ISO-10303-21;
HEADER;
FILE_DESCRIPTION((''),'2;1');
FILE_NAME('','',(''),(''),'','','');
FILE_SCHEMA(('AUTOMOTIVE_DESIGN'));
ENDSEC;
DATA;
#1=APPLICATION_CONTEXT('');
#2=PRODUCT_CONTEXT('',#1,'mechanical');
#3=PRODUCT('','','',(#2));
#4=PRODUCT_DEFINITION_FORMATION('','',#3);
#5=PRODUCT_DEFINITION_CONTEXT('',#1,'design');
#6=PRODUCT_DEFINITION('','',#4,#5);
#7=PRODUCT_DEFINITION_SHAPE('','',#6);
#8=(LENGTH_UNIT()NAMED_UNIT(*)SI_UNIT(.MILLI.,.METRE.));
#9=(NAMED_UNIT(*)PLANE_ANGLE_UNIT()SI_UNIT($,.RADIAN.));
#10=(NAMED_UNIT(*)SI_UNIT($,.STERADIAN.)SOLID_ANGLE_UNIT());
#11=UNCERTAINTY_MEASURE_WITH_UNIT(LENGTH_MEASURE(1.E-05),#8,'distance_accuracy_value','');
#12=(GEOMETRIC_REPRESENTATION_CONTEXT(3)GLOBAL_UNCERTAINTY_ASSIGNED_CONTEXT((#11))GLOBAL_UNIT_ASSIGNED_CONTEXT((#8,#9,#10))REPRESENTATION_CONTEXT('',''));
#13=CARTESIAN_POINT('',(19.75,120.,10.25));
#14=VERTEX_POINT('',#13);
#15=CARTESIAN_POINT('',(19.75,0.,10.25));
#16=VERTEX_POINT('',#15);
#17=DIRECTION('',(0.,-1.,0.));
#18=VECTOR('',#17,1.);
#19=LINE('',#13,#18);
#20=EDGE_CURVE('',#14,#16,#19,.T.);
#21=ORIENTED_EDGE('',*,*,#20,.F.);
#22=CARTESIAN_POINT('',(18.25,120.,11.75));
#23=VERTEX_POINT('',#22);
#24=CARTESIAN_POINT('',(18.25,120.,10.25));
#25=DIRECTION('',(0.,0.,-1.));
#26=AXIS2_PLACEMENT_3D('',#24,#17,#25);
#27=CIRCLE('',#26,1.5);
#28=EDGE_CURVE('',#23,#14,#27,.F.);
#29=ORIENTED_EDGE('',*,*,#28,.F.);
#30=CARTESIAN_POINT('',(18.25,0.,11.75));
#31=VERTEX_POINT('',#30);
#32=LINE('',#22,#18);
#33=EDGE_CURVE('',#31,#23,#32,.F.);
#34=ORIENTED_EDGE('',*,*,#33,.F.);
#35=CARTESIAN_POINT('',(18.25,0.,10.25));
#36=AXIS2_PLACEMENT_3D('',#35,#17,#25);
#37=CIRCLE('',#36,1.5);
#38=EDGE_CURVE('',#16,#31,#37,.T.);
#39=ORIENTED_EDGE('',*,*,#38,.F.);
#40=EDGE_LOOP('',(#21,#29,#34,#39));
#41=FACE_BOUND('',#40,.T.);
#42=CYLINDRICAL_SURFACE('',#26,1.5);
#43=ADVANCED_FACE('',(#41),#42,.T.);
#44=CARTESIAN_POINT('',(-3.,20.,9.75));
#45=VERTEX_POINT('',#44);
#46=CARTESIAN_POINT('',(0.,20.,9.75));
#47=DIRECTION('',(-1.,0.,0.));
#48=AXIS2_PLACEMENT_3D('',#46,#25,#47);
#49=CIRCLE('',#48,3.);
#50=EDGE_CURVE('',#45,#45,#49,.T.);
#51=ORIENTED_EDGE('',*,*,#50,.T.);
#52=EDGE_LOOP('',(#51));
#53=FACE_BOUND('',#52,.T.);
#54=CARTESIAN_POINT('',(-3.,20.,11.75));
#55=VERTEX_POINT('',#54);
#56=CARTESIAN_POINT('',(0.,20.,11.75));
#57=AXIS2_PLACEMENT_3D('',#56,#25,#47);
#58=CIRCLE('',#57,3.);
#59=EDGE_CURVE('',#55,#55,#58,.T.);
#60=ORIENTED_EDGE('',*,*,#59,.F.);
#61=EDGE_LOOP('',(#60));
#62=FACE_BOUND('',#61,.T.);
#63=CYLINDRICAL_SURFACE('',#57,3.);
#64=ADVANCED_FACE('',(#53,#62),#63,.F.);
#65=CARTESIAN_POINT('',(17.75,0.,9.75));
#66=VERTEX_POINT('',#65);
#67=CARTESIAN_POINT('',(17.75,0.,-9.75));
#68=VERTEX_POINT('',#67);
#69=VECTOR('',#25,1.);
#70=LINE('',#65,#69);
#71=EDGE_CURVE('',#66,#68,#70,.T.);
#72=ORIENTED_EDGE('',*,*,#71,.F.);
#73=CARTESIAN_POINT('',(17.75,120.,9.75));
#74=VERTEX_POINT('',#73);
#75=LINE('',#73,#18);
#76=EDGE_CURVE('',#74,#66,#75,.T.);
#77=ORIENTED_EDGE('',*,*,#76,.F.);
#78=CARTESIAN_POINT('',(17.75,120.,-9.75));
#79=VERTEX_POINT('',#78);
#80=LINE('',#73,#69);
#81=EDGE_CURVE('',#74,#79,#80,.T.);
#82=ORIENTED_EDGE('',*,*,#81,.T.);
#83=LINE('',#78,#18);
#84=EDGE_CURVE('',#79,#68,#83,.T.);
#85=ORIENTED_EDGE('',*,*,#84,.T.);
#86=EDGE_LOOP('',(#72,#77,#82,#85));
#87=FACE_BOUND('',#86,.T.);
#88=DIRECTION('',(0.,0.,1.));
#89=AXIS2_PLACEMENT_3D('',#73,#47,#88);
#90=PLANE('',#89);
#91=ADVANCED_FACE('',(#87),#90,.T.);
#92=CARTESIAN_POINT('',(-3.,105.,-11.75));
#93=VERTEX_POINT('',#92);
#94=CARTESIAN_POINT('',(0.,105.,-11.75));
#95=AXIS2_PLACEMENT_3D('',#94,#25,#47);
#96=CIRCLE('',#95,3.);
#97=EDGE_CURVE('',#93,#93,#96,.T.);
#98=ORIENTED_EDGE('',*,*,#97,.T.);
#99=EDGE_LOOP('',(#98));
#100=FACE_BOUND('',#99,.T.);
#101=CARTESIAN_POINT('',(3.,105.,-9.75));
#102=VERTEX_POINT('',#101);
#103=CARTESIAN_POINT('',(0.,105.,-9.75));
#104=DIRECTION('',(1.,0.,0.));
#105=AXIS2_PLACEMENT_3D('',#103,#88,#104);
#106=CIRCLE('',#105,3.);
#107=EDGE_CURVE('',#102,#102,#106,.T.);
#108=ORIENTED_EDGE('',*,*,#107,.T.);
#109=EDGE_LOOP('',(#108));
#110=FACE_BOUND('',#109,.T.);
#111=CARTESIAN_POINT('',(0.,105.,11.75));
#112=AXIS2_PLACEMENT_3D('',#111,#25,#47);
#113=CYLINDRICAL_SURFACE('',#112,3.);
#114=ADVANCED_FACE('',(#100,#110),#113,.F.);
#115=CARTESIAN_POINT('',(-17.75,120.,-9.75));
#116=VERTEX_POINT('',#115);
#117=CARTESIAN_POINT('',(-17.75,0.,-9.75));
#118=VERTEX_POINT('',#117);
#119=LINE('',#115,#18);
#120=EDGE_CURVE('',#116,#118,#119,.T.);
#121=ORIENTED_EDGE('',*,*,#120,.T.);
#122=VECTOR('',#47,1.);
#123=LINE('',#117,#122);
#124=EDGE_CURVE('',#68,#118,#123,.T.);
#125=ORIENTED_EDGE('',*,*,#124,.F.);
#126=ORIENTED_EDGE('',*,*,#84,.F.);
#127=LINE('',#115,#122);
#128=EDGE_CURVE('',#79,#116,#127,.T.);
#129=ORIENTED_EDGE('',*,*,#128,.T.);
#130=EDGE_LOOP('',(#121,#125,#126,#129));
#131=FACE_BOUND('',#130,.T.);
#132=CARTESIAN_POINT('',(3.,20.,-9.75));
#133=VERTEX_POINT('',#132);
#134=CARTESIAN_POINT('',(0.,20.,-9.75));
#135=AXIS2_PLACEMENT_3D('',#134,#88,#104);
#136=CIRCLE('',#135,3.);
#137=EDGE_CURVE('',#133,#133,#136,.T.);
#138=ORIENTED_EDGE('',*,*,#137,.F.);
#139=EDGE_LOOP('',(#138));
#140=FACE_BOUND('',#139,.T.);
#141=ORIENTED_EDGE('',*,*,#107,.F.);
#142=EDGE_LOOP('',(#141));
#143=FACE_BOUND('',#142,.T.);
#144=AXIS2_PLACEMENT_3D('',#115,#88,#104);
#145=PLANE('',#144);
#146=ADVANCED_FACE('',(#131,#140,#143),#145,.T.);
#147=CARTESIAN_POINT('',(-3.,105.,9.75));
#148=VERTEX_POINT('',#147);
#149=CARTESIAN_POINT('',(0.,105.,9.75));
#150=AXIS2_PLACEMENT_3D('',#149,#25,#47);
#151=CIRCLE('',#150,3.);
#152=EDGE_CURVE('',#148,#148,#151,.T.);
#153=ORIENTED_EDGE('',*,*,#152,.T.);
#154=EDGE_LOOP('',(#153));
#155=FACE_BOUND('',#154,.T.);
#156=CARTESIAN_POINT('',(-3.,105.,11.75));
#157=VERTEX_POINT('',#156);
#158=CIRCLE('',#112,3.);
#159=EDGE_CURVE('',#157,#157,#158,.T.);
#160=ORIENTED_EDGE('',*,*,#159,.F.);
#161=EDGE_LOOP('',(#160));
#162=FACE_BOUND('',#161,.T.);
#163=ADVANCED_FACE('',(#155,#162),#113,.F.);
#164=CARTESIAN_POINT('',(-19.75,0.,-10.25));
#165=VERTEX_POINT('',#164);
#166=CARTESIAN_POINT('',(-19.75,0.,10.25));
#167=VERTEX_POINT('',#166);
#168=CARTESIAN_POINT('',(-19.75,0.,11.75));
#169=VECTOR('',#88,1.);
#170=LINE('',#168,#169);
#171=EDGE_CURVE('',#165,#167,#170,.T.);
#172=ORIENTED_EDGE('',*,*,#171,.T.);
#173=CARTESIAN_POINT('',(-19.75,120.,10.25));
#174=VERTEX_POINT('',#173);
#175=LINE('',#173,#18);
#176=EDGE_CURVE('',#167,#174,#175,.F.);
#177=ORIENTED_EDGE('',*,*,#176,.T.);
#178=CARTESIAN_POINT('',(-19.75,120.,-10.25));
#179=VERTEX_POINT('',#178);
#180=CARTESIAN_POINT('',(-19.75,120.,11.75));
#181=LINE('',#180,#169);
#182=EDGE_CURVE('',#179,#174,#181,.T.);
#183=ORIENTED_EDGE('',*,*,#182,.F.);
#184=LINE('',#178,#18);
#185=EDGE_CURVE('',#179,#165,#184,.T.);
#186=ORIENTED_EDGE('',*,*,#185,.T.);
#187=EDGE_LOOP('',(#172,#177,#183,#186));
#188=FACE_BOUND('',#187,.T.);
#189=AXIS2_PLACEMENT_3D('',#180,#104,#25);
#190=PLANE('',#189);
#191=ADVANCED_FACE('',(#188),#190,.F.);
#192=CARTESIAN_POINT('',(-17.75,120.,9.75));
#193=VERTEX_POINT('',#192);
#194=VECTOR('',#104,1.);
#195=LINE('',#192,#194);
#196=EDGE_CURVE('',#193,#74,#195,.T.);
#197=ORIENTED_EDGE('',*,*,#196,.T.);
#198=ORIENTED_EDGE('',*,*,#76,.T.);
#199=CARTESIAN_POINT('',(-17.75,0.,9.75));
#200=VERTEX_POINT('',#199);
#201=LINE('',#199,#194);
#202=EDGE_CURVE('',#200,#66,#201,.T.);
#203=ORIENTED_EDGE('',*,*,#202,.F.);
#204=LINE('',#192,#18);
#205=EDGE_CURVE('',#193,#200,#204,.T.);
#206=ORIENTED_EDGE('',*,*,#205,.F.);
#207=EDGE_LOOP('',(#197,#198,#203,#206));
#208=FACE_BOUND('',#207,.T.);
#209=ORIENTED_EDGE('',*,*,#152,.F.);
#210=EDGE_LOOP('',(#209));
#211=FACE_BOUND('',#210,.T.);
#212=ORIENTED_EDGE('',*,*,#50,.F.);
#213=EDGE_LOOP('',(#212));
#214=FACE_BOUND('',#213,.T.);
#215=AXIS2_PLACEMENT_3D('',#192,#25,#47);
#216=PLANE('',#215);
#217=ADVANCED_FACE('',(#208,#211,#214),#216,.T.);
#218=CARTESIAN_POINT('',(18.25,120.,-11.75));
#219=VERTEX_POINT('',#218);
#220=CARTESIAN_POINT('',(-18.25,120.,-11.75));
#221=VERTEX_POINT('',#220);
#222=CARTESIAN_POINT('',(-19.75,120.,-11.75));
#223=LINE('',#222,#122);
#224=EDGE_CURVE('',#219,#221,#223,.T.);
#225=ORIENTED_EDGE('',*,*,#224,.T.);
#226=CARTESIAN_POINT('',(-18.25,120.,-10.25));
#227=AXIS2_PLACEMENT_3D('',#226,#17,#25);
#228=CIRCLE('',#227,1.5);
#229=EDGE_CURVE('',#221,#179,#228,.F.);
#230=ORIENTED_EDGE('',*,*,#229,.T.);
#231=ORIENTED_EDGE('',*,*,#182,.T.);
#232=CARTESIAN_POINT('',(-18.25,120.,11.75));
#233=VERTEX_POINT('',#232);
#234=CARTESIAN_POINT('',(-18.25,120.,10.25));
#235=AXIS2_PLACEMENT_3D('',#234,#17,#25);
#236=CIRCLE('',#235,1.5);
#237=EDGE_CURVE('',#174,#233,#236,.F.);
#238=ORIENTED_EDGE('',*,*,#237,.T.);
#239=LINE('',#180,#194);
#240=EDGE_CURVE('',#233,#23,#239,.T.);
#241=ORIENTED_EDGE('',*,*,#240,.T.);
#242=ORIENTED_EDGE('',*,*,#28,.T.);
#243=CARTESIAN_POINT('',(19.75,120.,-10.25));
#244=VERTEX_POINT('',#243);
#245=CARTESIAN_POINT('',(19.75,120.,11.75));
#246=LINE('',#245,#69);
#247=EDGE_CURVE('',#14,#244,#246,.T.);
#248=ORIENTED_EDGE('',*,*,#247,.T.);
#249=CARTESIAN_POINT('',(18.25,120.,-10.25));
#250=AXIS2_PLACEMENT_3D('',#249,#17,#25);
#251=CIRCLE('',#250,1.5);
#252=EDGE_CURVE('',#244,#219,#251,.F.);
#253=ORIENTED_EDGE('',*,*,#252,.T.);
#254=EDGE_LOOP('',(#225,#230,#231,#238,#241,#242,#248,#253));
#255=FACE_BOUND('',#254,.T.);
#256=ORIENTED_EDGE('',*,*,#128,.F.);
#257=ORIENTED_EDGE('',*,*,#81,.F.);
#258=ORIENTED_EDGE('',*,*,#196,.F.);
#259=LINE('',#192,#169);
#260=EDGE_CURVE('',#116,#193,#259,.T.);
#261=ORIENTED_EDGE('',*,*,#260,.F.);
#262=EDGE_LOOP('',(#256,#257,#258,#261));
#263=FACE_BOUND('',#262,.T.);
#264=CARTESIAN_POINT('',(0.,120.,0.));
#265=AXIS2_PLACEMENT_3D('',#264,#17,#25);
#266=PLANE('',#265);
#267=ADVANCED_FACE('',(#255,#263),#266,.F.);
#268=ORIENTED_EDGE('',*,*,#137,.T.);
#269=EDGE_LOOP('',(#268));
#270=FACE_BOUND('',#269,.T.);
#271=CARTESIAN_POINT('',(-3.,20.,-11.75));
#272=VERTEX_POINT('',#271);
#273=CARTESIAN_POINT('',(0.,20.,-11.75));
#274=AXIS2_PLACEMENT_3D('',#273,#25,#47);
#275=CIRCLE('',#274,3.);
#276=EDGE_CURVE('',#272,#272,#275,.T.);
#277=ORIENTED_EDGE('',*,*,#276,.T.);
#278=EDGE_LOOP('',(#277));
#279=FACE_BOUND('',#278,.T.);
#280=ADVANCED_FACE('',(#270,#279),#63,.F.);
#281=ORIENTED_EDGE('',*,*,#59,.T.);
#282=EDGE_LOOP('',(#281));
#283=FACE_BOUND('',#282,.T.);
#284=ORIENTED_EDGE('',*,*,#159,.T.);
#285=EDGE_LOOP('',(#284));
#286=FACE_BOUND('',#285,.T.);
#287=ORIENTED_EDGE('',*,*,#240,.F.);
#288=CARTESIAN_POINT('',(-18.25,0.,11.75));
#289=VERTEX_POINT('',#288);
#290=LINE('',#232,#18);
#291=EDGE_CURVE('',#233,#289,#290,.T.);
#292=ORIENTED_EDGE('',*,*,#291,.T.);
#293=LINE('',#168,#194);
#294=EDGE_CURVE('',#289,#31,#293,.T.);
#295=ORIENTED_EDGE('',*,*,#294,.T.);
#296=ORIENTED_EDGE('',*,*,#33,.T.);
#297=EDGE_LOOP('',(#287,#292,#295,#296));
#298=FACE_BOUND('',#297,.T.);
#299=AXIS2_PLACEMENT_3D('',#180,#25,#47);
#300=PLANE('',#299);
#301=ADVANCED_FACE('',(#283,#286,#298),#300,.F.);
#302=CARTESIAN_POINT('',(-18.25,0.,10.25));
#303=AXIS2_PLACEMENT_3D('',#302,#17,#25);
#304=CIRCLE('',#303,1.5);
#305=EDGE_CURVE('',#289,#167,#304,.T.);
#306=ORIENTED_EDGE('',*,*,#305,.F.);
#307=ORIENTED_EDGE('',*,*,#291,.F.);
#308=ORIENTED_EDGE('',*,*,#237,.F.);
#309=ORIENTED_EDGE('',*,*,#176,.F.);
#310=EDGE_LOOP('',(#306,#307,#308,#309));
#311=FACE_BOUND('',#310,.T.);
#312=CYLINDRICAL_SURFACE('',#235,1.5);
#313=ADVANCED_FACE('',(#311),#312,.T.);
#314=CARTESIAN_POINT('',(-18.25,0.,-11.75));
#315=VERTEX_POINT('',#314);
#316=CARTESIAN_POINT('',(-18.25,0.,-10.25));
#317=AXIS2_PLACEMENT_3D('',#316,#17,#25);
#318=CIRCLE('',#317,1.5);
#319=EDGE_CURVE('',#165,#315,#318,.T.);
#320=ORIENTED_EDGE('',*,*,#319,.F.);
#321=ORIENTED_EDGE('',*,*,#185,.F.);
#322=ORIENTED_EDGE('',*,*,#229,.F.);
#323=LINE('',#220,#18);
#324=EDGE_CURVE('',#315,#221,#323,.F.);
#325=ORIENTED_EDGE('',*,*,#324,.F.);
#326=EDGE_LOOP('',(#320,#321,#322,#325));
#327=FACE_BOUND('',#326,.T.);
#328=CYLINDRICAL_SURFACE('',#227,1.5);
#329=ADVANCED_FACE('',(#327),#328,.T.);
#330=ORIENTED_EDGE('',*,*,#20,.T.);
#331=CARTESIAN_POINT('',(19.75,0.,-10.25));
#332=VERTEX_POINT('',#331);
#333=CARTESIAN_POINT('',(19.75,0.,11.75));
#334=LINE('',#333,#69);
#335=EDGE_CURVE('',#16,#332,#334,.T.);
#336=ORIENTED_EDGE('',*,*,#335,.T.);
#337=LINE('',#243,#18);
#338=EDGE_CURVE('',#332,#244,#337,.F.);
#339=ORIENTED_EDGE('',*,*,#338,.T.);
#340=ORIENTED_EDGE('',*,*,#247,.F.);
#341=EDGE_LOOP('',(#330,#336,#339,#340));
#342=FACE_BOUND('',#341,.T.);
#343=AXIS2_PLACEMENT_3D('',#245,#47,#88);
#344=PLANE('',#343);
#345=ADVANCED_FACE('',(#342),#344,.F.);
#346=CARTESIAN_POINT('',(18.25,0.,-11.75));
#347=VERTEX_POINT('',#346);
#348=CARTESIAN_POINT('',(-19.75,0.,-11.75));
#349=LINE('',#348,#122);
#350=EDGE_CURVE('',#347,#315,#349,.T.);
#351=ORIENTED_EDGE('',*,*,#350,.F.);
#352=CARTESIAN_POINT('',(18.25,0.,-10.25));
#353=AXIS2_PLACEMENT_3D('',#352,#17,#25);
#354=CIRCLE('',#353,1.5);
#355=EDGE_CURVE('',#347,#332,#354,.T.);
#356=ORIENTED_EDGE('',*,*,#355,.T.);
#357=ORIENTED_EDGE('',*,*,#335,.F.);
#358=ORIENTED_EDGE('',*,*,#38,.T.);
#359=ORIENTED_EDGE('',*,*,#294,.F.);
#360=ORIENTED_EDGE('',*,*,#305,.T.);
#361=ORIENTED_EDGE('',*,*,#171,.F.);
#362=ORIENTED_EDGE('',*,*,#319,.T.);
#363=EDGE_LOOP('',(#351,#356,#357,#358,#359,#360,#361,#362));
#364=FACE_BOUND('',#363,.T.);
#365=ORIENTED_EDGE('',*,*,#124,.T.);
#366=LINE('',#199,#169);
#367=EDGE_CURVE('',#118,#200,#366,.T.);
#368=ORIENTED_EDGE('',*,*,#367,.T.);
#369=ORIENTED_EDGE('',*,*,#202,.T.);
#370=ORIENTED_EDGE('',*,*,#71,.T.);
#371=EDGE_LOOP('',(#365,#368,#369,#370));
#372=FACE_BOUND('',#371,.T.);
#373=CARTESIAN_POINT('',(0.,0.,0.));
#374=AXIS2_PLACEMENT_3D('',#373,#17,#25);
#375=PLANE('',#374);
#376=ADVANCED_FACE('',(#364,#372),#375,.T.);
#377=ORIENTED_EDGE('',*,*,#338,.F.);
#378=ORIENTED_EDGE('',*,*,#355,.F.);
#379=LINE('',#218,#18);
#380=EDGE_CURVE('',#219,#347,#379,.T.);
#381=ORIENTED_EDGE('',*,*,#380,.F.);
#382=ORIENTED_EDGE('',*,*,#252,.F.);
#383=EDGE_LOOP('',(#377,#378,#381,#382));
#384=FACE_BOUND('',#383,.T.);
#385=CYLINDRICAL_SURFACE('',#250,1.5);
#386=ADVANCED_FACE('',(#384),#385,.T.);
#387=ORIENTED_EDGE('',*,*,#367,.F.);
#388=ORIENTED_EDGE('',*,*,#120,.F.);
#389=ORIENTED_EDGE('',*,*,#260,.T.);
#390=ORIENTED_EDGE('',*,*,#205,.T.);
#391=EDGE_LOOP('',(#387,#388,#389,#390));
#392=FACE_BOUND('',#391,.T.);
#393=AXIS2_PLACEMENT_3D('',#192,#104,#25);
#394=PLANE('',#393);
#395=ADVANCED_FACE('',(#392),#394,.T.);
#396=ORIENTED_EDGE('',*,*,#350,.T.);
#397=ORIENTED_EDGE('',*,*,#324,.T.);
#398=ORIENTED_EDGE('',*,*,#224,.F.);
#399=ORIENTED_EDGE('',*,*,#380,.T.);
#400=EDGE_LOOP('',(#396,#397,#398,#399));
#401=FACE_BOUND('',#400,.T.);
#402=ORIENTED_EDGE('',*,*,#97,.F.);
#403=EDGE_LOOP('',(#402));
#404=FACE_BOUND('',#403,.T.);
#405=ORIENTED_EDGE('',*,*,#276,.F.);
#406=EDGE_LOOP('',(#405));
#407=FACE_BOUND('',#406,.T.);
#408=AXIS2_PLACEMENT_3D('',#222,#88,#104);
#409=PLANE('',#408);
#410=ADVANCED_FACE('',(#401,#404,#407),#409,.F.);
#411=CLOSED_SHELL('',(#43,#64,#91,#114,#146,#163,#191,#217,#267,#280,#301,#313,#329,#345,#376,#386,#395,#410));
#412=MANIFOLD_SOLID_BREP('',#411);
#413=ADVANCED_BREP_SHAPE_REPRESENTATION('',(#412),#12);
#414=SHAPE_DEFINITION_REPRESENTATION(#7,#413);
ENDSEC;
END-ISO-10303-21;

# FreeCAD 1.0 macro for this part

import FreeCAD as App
import Part
import Sketcher
from FreeCAD import Vector
Q = App.Units.Quantity


def edges_at(feature, points):
    """Names of the edges that pass closest to the given points."""
    edges = feature.Shape.Edges
    near = lambda p: min(range(len(edges)), key=lambda i: edges[i].distToShape(Part.Vertex(*p))[0])
    return sorted({f"Edge{near(p) + 1}" for p in points})


def add_polygon(sketch, points):
    """Adds a closed chain of lines whose ends are joined by coincident constraints."""
    first, n = sketch.GeometryCount, len(points)
    for a, b in zip(points, points[1:] + points[:1]):
        sketch.addGeometry(Part.LineSegment(App.Vector(*a, 0), App.Vector(*b, 0)), False)
    for i in range(n):
        sketch.addConstraint(Sketcher.Constraint("Coincident", first + i, 2, first + (i + 1) % n, 1))

doc = App.newDocument("Part")
body = doc.addObject("PartDesign::Body", "Body")

# Sketch on XZ plane
sketch1 = doc.addObject("Sketcher::SketchObject", "Sketch")
body.addObject(sketch1)
sketch1.AttachmentSupport = (doc.XZ_Plane, [""])
sketch1.MapMode = "FlatFace"
add_polygon(sketch1, [(-20, -12), (-20, 12), (20, 12), (20, -12)])  # lines 0-3
add_polygon(sketch1, [(18, 10), (-18, 10), (-18, -10), (18, -10)])  # lines 4-7
sketch1.addConstraint([
    Sketcher.Constraint("Vertical", 0),
    Sketcher.Constraint("Horizontal", 1),
    Sketcher.Constraint("Vertical", 2),
    Sketcher.Constraint("Horizontal", 3),
    Sketcher.Constraint("Horizontal", 4),
    Sketcher.Constraint("Vertical", 5),
    Sketcher.Constraint("Horizontal", 6),
    Sketcher.Constraint("Vertical", 7),
    Sketcher.Constraint("Symmetric", 0, 2, 2, 2, -1, 1),
    Sketcher.Constraint("Symmetric", 4, 2, 6, 2, -1, 1),
    Sketcher.Constraint("DistanceX", 1, 1, 1, 2, Q("39.5 mm")),
    Sketcher.Constraint("DistanceX", 4, 2, 4, 1, Q("35.5 mm")),
    Sketcher.Constraint("DistanceY", 0, 1, 0, 2, Q("23.5 mm")),
    Sketcher.Constraint("DistanceY", 5, 2, 5, 1, Q("19.5 mm")),
])
pad1 = doc.addObject("PartDesign::Pad", "Pad")
body.addObject(pad1)
pad1.Profile = sketch1
pad1.Length = 120
pad1.Reversed = True

# Sketch on XY plane
sketch2 = doc.addObject("Sketcher::SketchObject", "Sketch001")
body.addObject(sketch2)
sketch2.AttachmentSupport = (doc.XY_Plane, [""])
sketch2.MapMode = "FlatFace"
sketch2.AttachmentOffset = App.Placement(Vector(0, 0, 9.75), App.Rotation())
sketch2.addGeometry([
    Part.Circle(Vector(0, 105, 0), Vector(0, 0, 1), 3),
    Part.Circle(Vector(0, 20, 0), Vector(0, 0, 1), 3),
], False)
sketch2.addConstraint([
    Sketcher.Constraint("Equal", 0, 1),
    Sketcher.Constraint("PointOnObject", 0, 3, -2),
    Sketcher.Constraint("PointOnObject", 1, 3, -2),
    Sketcher.Constraint("Diameter", 0, Q("6 mm")),
    Sketcher.Constraint("DistanceY", -1, 1, 0, 3, Q("105 mm")),
    Sketcher.Constraint("DistanceY", -1, 1, 1, 3, Q("20 mm")),
])
pocket1 = doc.addObject("PartDesign::Pocket", "Pocket")
body.addObject(pocket1)
pocket1.Profile = sketch2
pocket1.Type = "ThroughAll"
pocket1.Midplane = True
doc.recompute()

fillet = doc.addObject("PartDesign::Fillet", "Fillet")
body.addObject(fillet)
fillet.Base = (pocket1, edges_at(pocket1, [
    (19.75, 60, 11.75),
    (-19.75, 60, 11.75),
    (-19.75, 60, -11.75),
    (19.75, 60, -11.75),
]))
fillet.Radius = 1.5

doc.recompute()
